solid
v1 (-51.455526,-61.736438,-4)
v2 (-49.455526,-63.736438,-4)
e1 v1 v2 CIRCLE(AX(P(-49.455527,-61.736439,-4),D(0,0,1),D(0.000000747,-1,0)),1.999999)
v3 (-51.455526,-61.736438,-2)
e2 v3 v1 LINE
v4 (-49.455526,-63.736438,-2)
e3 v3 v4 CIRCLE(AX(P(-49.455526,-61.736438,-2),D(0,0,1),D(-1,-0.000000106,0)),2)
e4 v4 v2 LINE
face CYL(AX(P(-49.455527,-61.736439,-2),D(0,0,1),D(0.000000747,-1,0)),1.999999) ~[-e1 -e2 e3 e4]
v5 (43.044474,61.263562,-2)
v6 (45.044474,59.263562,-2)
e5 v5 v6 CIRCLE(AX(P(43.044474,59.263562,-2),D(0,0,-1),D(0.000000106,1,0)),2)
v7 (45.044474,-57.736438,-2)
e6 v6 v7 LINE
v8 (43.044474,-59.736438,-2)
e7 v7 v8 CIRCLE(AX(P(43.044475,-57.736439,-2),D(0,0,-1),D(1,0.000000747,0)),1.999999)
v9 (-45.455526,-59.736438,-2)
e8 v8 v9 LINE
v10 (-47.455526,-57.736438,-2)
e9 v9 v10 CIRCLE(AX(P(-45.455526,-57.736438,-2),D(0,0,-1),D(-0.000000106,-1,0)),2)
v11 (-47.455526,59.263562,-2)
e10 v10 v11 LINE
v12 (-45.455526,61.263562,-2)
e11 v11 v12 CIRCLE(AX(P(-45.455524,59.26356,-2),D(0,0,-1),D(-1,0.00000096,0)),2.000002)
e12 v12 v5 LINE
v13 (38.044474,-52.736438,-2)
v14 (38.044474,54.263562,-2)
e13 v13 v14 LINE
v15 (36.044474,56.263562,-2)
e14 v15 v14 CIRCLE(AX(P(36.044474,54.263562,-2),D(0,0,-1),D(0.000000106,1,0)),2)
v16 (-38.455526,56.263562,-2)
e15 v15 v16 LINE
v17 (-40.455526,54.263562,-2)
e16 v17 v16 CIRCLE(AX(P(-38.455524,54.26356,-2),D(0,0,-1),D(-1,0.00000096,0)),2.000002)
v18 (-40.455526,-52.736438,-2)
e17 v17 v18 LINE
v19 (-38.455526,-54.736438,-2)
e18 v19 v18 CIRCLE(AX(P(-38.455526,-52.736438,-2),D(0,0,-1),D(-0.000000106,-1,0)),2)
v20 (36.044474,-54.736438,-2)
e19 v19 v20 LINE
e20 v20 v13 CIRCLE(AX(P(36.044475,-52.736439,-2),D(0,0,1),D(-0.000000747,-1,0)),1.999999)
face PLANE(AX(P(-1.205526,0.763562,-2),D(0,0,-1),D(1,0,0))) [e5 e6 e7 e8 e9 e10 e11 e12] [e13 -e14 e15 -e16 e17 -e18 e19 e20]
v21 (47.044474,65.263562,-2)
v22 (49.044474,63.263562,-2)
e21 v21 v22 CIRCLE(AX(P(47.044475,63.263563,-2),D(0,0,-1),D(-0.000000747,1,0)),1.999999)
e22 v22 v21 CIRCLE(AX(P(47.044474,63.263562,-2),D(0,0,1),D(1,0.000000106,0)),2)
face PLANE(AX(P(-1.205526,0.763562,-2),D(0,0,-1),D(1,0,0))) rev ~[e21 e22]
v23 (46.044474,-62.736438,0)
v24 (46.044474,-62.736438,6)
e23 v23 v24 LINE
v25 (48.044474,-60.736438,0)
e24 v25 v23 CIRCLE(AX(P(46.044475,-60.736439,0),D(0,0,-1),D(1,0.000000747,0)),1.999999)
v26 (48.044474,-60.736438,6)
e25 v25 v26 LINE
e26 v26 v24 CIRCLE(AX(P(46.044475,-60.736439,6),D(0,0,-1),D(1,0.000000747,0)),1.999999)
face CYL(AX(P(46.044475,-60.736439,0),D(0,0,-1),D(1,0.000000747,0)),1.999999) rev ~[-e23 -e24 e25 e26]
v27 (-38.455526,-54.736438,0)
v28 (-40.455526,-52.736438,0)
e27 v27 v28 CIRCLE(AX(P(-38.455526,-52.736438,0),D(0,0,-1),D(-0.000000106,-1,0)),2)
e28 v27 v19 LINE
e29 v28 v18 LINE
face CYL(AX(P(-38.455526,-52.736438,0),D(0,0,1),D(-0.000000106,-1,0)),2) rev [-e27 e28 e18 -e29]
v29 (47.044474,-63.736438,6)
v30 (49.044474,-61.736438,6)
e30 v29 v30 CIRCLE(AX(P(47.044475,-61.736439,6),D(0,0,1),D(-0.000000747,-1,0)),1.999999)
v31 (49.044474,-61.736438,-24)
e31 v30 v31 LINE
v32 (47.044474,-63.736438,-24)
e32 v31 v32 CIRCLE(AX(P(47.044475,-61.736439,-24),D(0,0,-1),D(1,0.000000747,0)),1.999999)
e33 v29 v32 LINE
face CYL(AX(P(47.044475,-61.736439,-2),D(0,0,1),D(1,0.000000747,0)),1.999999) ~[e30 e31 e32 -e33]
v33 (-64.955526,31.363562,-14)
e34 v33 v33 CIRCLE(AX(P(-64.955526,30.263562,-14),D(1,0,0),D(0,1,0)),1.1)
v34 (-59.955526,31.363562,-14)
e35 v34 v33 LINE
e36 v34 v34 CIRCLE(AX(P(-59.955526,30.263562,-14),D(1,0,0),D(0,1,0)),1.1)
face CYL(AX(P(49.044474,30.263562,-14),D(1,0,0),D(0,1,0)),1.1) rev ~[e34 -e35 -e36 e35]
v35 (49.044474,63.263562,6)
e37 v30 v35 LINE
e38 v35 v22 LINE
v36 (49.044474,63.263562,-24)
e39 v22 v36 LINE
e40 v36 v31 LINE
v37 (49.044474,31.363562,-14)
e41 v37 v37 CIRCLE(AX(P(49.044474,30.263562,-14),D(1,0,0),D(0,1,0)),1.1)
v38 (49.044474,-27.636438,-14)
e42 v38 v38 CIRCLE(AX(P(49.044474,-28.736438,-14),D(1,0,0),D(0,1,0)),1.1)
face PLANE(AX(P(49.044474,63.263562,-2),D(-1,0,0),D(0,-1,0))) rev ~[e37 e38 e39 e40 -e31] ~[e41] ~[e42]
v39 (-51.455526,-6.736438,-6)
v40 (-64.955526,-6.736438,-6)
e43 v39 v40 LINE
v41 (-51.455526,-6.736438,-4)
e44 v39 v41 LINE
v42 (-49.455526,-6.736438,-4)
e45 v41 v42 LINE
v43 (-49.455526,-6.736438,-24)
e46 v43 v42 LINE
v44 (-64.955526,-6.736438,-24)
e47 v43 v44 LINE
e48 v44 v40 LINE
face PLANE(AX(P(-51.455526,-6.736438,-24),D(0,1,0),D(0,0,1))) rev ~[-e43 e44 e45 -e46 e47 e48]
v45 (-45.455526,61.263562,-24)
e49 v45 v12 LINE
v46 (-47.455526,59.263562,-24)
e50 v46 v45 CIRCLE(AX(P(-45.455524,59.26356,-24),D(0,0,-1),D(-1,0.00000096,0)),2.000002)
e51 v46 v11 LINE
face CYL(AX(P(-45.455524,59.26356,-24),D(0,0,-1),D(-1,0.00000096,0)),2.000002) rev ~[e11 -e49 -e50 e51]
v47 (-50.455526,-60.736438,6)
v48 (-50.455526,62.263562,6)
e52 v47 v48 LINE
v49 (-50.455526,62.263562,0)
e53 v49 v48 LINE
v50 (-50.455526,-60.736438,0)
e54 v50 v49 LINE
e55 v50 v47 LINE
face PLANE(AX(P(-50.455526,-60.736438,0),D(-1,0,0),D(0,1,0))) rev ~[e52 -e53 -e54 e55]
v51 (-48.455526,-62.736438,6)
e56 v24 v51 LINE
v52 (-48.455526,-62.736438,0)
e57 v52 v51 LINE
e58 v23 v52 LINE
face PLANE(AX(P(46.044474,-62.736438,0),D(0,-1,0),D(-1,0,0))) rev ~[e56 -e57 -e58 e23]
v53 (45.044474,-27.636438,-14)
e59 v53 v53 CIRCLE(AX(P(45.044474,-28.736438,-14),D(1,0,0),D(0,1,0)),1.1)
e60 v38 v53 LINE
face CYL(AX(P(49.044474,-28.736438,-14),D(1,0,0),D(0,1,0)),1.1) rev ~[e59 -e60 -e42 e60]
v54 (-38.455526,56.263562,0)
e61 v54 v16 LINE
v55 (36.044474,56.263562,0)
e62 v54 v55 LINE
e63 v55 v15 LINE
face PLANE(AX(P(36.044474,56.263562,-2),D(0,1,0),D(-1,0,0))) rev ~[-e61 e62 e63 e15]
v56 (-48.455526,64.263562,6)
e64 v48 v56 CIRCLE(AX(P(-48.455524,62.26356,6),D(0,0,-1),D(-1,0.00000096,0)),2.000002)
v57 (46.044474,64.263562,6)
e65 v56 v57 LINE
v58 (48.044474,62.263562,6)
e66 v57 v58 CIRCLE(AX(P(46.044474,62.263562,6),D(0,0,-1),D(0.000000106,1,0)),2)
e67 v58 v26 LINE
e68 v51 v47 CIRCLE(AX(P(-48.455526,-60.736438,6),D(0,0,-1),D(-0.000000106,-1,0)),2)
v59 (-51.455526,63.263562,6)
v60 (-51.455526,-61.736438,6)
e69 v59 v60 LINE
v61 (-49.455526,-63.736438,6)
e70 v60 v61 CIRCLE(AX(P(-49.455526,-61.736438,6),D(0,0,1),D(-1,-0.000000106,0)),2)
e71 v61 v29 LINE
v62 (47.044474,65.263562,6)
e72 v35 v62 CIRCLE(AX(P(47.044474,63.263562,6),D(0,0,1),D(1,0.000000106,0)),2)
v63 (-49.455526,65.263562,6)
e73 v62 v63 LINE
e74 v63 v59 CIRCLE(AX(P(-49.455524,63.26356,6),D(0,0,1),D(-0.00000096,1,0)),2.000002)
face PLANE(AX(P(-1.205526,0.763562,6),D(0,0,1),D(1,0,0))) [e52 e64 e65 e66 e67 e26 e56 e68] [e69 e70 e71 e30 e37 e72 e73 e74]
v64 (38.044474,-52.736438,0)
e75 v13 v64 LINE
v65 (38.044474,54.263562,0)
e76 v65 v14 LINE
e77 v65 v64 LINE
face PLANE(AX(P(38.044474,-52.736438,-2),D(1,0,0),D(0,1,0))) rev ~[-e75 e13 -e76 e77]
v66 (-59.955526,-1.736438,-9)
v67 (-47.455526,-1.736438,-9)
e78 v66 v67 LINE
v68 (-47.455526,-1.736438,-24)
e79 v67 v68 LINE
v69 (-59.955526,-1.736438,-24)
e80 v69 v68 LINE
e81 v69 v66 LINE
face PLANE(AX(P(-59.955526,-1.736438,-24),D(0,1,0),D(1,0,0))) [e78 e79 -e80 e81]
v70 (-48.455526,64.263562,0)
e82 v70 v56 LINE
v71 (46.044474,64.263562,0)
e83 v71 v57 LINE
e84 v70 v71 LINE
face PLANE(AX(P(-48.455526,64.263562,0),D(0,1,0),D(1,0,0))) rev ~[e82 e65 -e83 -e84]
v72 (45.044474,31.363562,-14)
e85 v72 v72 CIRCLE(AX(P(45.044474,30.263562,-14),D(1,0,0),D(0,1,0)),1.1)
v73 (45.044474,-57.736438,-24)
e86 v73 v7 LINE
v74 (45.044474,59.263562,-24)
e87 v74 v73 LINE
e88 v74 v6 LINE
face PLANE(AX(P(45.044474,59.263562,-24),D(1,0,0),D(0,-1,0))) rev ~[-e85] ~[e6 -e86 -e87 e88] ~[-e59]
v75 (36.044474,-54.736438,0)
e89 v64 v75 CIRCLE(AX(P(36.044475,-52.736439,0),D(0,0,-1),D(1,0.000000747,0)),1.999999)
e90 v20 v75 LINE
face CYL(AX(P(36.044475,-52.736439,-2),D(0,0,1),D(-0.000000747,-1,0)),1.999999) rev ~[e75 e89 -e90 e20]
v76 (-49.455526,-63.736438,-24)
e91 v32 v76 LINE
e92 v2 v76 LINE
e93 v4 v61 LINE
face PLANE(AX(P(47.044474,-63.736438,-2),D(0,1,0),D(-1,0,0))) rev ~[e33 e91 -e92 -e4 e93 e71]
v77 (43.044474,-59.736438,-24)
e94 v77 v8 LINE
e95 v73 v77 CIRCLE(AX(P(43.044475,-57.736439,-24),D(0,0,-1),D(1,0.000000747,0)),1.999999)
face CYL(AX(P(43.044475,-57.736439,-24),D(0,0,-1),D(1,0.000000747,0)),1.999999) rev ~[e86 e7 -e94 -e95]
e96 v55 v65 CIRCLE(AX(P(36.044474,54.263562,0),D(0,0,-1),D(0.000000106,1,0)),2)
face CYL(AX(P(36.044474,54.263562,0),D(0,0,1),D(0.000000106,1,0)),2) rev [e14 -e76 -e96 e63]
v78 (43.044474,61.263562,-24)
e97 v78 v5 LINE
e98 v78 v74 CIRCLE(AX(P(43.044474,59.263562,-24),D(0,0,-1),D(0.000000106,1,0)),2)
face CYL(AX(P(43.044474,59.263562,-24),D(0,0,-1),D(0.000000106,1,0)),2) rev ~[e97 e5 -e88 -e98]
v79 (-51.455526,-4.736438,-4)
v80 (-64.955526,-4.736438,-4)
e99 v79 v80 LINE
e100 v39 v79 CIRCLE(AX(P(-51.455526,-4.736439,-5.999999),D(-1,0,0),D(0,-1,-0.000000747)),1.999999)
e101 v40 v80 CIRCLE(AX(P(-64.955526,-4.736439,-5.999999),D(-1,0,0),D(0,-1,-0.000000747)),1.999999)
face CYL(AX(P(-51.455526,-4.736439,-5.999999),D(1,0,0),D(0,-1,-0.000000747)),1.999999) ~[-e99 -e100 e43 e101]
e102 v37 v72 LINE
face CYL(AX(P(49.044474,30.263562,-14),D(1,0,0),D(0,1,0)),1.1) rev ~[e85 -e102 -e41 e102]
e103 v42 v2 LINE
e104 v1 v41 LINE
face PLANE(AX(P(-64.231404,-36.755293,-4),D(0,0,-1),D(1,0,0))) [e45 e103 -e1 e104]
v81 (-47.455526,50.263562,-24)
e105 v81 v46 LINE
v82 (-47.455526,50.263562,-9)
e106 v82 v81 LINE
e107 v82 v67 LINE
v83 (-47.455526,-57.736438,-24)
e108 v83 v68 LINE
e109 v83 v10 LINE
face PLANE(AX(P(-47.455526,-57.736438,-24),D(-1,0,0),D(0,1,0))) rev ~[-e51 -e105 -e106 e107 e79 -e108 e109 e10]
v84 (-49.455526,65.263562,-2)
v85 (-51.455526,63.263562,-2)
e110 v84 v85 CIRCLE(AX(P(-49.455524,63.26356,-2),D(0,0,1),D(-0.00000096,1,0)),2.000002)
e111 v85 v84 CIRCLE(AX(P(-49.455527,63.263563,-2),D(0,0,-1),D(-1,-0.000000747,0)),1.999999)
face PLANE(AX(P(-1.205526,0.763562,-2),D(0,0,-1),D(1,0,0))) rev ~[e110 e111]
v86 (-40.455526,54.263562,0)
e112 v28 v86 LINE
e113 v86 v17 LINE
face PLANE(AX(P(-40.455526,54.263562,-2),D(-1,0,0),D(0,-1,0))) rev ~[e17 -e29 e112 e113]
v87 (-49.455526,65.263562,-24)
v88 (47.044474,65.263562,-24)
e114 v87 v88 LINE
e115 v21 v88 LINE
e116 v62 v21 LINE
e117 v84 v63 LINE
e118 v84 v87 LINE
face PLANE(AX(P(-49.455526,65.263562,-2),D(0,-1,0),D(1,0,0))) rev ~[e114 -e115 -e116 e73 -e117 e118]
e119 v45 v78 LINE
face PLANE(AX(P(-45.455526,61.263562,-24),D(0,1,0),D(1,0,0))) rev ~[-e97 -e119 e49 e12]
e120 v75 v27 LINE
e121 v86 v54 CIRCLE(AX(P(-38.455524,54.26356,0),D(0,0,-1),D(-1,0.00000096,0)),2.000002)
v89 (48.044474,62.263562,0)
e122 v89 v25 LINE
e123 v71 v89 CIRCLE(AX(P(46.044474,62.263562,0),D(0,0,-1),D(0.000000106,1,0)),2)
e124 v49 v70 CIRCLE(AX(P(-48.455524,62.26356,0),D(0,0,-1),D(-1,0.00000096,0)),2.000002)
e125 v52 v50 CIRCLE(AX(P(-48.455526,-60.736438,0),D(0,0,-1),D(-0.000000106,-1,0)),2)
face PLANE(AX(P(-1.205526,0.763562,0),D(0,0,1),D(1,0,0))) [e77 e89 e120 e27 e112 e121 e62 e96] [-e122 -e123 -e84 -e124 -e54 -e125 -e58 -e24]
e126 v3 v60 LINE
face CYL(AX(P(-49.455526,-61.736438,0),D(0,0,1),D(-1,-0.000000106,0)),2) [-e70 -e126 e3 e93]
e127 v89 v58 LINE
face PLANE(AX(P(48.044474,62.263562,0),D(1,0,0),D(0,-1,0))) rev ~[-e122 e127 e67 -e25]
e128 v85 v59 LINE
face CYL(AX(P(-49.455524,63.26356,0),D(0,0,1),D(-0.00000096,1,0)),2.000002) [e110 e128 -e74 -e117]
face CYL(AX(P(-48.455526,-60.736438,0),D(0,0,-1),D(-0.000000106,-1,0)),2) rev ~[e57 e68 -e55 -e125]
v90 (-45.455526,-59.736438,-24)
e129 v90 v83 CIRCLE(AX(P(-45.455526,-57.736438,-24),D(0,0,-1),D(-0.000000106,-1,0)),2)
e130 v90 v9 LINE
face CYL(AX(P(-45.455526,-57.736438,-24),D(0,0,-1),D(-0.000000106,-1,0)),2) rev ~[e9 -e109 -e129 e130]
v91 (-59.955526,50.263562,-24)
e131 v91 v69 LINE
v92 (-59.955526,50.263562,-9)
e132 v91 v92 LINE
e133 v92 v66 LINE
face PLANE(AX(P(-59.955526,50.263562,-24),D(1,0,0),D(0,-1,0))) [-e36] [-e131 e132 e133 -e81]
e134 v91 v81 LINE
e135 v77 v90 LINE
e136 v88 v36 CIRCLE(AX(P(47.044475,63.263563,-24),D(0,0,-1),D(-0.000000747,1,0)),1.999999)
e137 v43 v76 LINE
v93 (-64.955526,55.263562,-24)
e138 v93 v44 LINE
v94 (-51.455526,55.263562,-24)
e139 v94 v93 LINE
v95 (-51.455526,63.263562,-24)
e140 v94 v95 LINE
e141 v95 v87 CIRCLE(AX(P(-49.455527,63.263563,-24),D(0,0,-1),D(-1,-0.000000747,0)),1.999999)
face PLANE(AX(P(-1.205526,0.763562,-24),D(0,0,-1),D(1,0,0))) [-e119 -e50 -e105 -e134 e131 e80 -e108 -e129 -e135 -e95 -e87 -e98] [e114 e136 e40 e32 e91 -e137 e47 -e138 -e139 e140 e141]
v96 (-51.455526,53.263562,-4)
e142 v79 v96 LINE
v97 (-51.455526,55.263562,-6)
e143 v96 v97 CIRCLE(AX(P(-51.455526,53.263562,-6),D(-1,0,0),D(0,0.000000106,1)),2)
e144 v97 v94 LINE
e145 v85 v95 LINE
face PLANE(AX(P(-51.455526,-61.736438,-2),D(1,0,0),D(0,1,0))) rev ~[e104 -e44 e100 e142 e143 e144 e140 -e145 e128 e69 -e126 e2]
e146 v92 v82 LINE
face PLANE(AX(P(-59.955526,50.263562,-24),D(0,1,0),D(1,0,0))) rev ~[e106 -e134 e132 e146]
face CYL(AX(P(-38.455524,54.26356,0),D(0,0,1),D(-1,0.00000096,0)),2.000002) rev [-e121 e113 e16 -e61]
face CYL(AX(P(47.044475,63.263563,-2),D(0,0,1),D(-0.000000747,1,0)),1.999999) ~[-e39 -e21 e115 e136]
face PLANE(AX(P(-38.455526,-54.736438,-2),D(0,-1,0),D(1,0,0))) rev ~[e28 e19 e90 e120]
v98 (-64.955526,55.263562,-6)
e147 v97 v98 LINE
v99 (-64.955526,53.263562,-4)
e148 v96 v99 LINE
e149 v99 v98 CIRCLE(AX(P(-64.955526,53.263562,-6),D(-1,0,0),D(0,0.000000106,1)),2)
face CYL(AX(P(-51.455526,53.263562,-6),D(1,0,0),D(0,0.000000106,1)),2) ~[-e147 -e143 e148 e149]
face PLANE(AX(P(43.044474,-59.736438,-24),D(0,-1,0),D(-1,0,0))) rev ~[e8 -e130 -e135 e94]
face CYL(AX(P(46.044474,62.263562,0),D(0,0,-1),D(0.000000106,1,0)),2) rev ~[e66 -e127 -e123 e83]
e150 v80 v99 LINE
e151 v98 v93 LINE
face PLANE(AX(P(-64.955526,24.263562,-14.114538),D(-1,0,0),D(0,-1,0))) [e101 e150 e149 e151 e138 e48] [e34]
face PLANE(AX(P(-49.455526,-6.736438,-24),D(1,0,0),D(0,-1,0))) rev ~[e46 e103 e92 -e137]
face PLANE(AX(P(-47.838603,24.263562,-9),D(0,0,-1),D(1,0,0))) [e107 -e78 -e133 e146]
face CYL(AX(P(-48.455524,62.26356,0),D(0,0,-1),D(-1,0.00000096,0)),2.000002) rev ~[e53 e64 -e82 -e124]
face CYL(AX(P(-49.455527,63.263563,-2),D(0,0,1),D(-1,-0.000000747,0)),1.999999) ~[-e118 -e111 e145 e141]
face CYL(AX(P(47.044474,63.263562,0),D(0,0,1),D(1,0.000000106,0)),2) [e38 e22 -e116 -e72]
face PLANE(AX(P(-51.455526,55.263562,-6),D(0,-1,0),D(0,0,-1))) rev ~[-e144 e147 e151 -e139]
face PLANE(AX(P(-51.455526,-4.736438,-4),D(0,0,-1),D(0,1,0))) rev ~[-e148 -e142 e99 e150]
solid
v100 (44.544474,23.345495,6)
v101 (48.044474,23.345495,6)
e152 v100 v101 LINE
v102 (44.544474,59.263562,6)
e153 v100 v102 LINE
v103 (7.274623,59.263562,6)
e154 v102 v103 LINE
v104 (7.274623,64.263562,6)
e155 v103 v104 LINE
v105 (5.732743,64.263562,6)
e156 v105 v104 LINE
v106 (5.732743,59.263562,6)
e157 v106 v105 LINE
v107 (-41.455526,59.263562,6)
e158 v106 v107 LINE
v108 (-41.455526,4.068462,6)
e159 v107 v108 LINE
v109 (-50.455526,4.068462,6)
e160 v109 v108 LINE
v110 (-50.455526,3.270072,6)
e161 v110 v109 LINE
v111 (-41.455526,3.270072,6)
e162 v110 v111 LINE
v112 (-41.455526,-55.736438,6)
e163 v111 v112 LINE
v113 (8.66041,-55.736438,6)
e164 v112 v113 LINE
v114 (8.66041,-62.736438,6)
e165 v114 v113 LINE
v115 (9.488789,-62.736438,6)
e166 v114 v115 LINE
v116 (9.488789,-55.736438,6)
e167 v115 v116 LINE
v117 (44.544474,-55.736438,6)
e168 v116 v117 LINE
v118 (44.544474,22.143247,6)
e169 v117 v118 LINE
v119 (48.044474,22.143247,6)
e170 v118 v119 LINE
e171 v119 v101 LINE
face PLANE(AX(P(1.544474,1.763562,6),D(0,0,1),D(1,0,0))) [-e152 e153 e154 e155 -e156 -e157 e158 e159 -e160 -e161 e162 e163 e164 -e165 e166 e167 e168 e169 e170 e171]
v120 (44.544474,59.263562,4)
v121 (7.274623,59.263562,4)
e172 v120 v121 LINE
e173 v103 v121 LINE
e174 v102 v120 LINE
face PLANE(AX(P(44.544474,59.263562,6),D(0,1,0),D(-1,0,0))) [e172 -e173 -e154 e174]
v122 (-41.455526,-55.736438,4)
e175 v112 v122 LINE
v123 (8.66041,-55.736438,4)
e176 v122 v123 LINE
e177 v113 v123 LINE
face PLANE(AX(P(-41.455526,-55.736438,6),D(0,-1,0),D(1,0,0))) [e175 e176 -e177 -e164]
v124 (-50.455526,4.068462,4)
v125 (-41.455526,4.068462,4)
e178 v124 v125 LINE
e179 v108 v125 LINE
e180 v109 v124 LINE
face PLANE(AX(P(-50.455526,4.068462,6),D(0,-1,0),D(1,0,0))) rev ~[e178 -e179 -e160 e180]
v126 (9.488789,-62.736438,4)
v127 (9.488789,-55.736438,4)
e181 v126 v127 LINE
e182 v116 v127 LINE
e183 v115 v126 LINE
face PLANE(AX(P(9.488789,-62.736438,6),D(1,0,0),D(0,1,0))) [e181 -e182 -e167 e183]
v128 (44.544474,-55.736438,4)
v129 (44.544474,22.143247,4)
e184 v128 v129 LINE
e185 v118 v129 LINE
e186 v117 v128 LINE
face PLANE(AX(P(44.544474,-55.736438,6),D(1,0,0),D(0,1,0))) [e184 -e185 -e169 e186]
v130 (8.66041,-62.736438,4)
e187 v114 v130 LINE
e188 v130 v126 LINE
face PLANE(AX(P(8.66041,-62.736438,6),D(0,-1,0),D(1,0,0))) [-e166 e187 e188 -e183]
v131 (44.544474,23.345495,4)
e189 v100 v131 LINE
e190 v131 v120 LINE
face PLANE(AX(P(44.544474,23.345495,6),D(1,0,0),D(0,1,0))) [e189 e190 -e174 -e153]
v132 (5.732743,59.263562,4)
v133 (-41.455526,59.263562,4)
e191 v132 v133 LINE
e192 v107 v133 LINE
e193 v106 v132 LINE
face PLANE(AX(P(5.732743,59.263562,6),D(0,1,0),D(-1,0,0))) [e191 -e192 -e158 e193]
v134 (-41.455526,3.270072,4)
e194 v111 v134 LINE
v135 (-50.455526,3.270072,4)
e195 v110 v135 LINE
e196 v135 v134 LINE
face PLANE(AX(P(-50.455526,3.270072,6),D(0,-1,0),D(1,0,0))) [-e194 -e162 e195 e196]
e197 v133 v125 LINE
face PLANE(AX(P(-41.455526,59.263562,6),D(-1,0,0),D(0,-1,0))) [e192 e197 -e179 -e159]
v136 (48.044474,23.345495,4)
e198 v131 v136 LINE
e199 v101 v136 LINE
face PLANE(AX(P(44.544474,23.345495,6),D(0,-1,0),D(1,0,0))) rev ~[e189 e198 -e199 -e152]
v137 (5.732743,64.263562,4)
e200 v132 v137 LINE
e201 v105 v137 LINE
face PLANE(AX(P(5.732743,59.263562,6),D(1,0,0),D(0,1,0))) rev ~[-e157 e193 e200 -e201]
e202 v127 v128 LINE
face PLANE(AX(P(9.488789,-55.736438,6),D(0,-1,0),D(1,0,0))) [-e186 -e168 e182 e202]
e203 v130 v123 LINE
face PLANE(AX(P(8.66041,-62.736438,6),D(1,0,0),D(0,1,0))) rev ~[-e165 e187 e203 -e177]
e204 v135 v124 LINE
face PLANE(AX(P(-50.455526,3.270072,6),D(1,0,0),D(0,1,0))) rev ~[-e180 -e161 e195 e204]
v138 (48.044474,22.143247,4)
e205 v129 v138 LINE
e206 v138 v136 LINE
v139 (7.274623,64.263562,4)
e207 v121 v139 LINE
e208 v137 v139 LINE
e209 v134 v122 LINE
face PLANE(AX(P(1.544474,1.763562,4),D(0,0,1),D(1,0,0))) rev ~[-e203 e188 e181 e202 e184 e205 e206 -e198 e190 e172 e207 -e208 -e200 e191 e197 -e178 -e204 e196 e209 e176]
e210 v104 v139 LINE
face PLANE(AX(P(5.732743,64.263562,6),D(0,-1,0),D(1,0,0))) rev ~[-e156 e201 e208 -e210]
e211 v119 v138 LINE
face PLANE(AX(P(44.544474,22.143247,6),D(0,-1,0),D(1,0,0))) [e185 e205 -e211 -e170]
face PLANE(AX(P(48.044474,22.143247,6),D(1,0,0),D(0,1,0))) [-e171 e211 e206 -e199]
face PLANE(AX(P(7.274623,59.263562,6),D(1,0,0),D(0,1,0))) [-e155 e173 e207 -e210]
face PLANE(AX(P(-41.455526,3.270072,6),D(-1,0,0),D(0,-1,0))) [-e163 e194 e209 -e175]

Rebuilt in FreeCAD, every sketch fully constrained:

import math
import FreeCAD as App
import Part
import Sketcher
from FreeCAD import Vector

doc = App.newDocument("Part")
params = doc.addObject("Spreadsheet::Sheet", "Params")
for row, (alias, value) in enumerate([
    ("sketch1_radius", "2.000002 mm"),
    ("sketch1_height", "125 mm"),
    ("sketch1_height2", "123 mm"),
    ("sketch1_width", "96.5 mm"),
    ("sketch1_width2", "94.5 mm"),
    ("pad1_length", "6 mm"),
    ("sketch2_radius", "2.000002 mm"),
    ("sketch2_height", "125 mm"),
    ("sketch2_height2", "107 mm"),
    ("sketch2_width", "96.5 mm"),
    ("sketch2_width2", "74.5 mm"),
    ("pad2_length", "2 mm"),
    ("sketch3_radius", "1.999999 mm"),
    ("sketch3_height", "125 mm"),
    ("sketch3_height2", "107 mm"),
    ("sketch3_width", "96.5 mm"),
    ("sketch3_width2", "74.5 mm"),
    ("pad3_length", "22 mm"),
    ("sketch4_radius", "2 mm"),
    ("sketch4_height", "117 mm"),
    ("sketch4_width", "88.5 mm"),
    ("pocket1_length", "22 mm"),
    ("sketch5_radius", "2 mm"),
    ("sketch5_width", "58 mm"),
    ("sketch5_height", "18 mm"),
    ("pad4_length", "13.5 mm"),
    ("pocket2_length", "20 mm"),
    ("sketch7_height", "52 mm"),
    ("pocket3_length", "15 mm"),
    ("sketch8_diameter", "2.2 mm"),
    ("pocket4_length", "120 mm"),
    ("sketch9_diameter", "2.2 mm"),
    ("pocket5_length", "25 mm"),
    ("sketch10_width", "9 mm"),
    ("sketch10_height", "7 mm"),
    ("sketch10_height2", "5 mm"),
    ("sketch10_width2", "3.5 mm"),
    ("pad5_length", "2 mm"),
], start=1):
    params.set(f"A{row}", alias)
    params.set(f"B{row}", "=" + value)
    params.setAlias(f"B{row}", alias)

body = doc.addObject("PartDesign::Body", "Body")

# Sketch on XY plane
sketch1 = body.newObject("Sketcher::SketchObject", "Sketch")
sketch1.AttachmentSupport = (doc.getObject("XY_Plane"), [""])
sketch1.MapMode = "FlatFace"
sketch1.addGeometry([
    Part.LineSegment(Vector(47, 65.3, 0), Vector(-49.5, 65.3, 0)),  # 0
    Part.ArcOfCircle(Part.Circle(Vector(-49.5, 63.3, 0), Vector(0, 0, 1), 2), math.radians(90), math.radians(180)),  # 1
    Part.LineSegment(Vector(-51.5, 63.3, 0), Vector(-51.5, -61.7, 0)),  # 2
    Part.ArcOfCircle(Part.Circle(Vector(-49.5, -61.7, 0), Vector(0, 0, 1), 2), math.radians(-180), math.radians(-90)),  # 3
    Part.LineSegment(Vector(-49.5, -63.7, 0), Vector(47, -63.7, 0)),  # 4
    Part.ArcOfCircle(Part.Circle(Vector(47, -61.7, 0), Vector(0, 0, 1), 2), math.radians(-90), math.radians(0)),  # 5
    Part.LineSegment(Vector(49, -61.7, 0), Vector(49, 63.3, 0)),  # 6
    Part.ArcOfCircle(Part.Circle(Vector(47, 63.3, 0), Vector(0, 0, 1), 2), math.radians(0), math.radians(90)),  # 7
    Part.LineSegment(Vector(-50.5, -60.7, 0), Vector(-50.5, 62.3, 0)),  # 8
    Part.ArcOfCircle(Part.Circle(Vector(-48.5, 62.3, 0), Vector(0, 0, 1), 2), math.radians(90), math.radians(180)),  # 9
    Part.LineSegment(Vector(-48.5, 64.3, 0), Vector(46, 64.3, 0)),  # 10
    Part.ArcOfCircle(Part.Circle(Vector(46, 62.3, 0), Vector(0, 0, 1), 2), math.radians(0), math.radians(90)),  # 11
    Part.LineSegment(Vector(48, 62.3, 0), Vector(48, -60.7, 0)),  # 12
    Part.ArcOfCircle(Part.Circle(Vector(46, -60.7, 0), Vector(0, 0, 1), 2), math.radians(-90), math.radians(0)),  # 13
    Part.LineSegment(Vector(46, -62.7, 0), Vector(-48.5, -62.7, 0)),  # 14
    Part.ArcOfCircle(Part.Circle(Vector(-48.5, -60.7, 0), Vector(0, 0, 1), 2), math.radians(-180), math.radians(-90)),  # 15
], False)
sketch1.addConstraint([
    Sketcher.Constraint("Tangent", 0, 2, 1, 1),
    Sketcher.Constraint("Tangent", 1, 2, 2, 1),
    Sketcher.Constraint("Tangent", 2, 2, 3, 1),
    Sketcher.Constraint("Tangent", 3, 2, 4, 1),
    Sketcher.Constraint("Tangent", 4, 2, 5, 1),
    Sketcher.Constraint("Tangent", 5, 2, 6, 1),
    Sketcher.Constraint("Tangent", 6, 2, 7, 1),
    Sketcher.Constraint("Tangent", 7, 2, 0, 1),
    Sketcher.Constraint("Tangent", 8, 2, 9, 2),
    Sketcher.Constraint("Tangent", 9, 1, 10, 1),
    Sketcher.Constraint("Tangent", 10, 2, 11, 2),
    Sketcher.Constraint("Tangent", 11, 1, 12, 1),
    Sketcher.Constraint("Tangent", 12, 2, 13, 2),
    Sketcher.Constraint("Tangent", 13, 1, 14, 1),
    Sketcher.Constraint("Tangent", 14, 2, 15, 2),
    Sketcher.Constraint("Tangent", 15, 1, 8, 1),
    Sketcher.Constraint("Horizontal", 0),
    Sketcher.Constraint("Vertical", 2),
    Sketcher.Constraint("Horizontal", 4),
    Sketcher.Constraint("Vertical", 6),
    Sketcher.Constraint("Vertical", 8),
    Sketcher.Constraint("Horizontal", 10),
    Sketcher.Constraint("Vertical", 12),
    Sketcher.Constraint("Horizontal", 14),
    Sketcher.Constraint("Equal", 1, 3),
    Sketcher.Constraint("Equal", 3, 5),
    Sketcher.Constraint("Equal", 5, 7),
    Sketcher.Constraint("Equal", 7, 9),
    Sketcher.Constraint("Equal", 9, 11),
    Sketcher.Constraint("Equal", 11, 13),
    Sketcher.Constraint("Equal", 13, 15),
    Sketcher.Constraint("Radius", 1, 2.000002),
    Sketcher.Constraint("DistanceY", 2, 2, 2, 1, 125.0),
    Sketcher.Constraint("DistanceY", 8, 1, 8, 2, 123.0),
    Sketcher.Constraint("DistanceX", 0, 2, 0, 1, 96.5),
    Sketcher.Constraint("DistanceX", 10, 1, 10, 2, 94.5),
    Sketcher.Constraint("DistanceX", 1, 3, 9, 3, 1.0),
    Sketcher.Constraint("DistanceY", 9, 3, 1, 3, 1.0),
    Sketcher.Constraint("DistanceY", -1, 1, 1, 3, 63.26356),
    Sketcher.Constraint("DistanceX", 1, 3, -1, 1, 49.455524),
])
sketch1.setExpression("Constraints[31]", "Params.sketch1_radius")
sketch1.setExpression("Constraints[32]", "Params.sketch1_height")
sketch1.setExpression("Constraints[33]", "Params.sketch1_height2")
sketch1.setExpression("Constraints[34]", "Params.sketch1_width")
sketch1.setExpression("Constraints[35]", "Params.sketch1_width2")
pad1 = body.newObject("PartDesign::Pad", "Pad")
pad1.Profile = sketch1
pad1.setExpression("Length", "Params.pad1_length")

# Sketch on XY plane
sketch2 = body.newObject("Sketcher::SketchObject", "Sketch001")
sketch2.AttachmentSupport = (doc.getObject("XY_Plane"), [""])
sketch2.MapMode = "FlatFace"
sketch2.addGeometry([
    Part.LineSegment(Vector(47, 65.3, 0), Vector(-49.5, 65.3, 0)),  # 0
    Part.ArcOfCircle(Part.Circle(Vector(-49.5, 63.3, 0), Vector(0, 0, 1), 2), math.radians(90), math.radians(180)),  # 1
    Part.LineSegment(Vector(-51.5, 63.3, 0), Vector(-51.5, -61.7, 0)),  # 2
    Part.ArcOfCircle(Part.Circle(Vector(-49.5, -61.7, 0), Vector(0, 0, 1), 2), math.radians(-180), math.radians(-90)),  # 3
    Part.LineSegment(Vector(-49.5, -63.7, 0), Vector(47, -63.7, 0)),  # 4
    Part.ArcOfCircle(Part.Circle(Vector(47, -61.7, 0), Vector(0, 0, 1), 2), math.radians(-90), math.radians(0)),  # 5
    Part.LineSegment(Vector(49, -61.7, 0), Vector(49, 63.3, 0)),  # 6
    Part.ArcOfCircle(Part.Circle(Vector(47, 63.3, 0), Vector(0, 0, 1), 2), math.radians(0), math.radians(90)),  # 7
    Part.LineSegment(Vector(-40.5, -52.7, 0), Vector(-40.5, 54.3, 0)),  # 8
    Part.ArcOfCircle(Part.Circle(Vector(-38.5, 54.3, 0), Vector(0, 0, 1), 2), math.radians(90), math.radians(180)),  # 9
    Part.LineSegment(Vector(-38.5, 56.3, 0), Vector(36, 56.3, 0)),  # 10
    Part.ArcOfCircle(Part.Circle(Vector(36, 54.3, 0), Vector(0, 0, 1), 2), math.radians(0), math.radians(90)),  # 11
    Part.LineSegment(Vector(38, 54.3, 0), Vector(38, -52.7, 0)),  # 12
    Part.ArcOfCircle(Part.Circle(Vector(36, -52.7, 0), Vector(0, 0, 1), 2), math.radians(-90), math.radians(0)),  # 13
    Part.LineSegment(Vector(36, -54.7, 0), Vector(-38.5, -54.7, 0)),  # 14
    Part.ArcOfCircle(Part.Circle(Vector(-38.5, -52.7, 0), Vector(0, 0, 1), 2), math.radians(-180), math.radians(-90)),  # 15
], False)
sketch2.addConstraint([
    Sketcher.Constraint("Tangent", 0, 2, 1, 1),
    Sketcher.Constraint("Tangent", 1, 2, 2, 1),
    Sketcher.Constraint("Tangent", 2, 2, 3, 1),
    Sketcher.Constraint("Tangent", 3, 2, 4, 1),
    Sketcher.Constraint("Tangent", 4, 2, 5, 1),
    Sketcher.Constraint("Tangent", 5, 2, 6, 1),
    Sketcher.Constraint("Tangent", 6, 2, 7, 1),
    Sketcher.Constraint("Tangent", 7, 2, 0, 1),
    Sketcher.Constraint("Tangent", 8, 2, 9, 2),
    Sketcher.Constraint("Tangent", 9, 1, 10, 1),
    Sketcher.Constraint("Tangent", 10, 2, 11, 2),
    Sketcher.Constraint("Tangent", 11, 1, 12, 1),
    Sketcher.Constraint("Tangent", 12, 2, 13, 2),
    Sketcher.Constraint("Tangent", 13, 1, 14, 1),
    Sketcher.Constraint("Tangent", 14, 2, 15, 2),
    Sketcher.Constraint("Tangent", 15, 1, 8, 1),
    Sketcher.Constraint("Horizontal", 0),
    Sketcher.Constraint("Vertical", 2),
    Sketcher.Constraint("Horizontal", 4),
    Sketcher.Constraint("Vertical", 6),
    Sketcher.Constraint("Vertical", 8),
    Sketcher.Constraint("Horizontal", 10),
    Sketcher.Constraint("Vertical", 12),
    Sketcher.Constraint("Horizontal", 14),
    Sketcher.Constraint("Equal", 1, 3),
    Sketcher.Constraint("Equal", 3, 5),
    Sketcher.Constraint("Equal", 5, 7),
    Sketcher.Constraint("Equal", 7, 9),
    Sketcher.Constraint("Equal", 9, 11),
    Sketcher.Constraint("Equal", 11, 13),
    Sketcher.Constraint("Equal", 13, 15),
    Sketcher.Constraint("Radius", 1, 2.000002),
    Sketcher.Constraint("DistanceY", 2, 2, 2, 1, 125.0),
    Sketcher.Constraint("DistanceY", 8, 1, 8, 2, 107.0),
    Sketcher.Constraint("DistanceX", 0, 2, 0, 1, 96.5),
    Sketcher.Constraint("DistanceX", 10, 1, 10, 2, 74.5),
    Sketcher.Constraint("DistanceX", 1, 3, 9, 3, 11.0),
    Sketcher.Constraint("DistanceY", 9, 3, 1, 3, 9.0),
    Sketcher.Constraint("DistanceY", -1, 1, 1, 3, 63.26356),
    Sketcher.Constraint("DistanceX", 1, 3, -1, 1, 49.455524),
])
sketch2.setExpression("Constraints[31]", "Params.sketch2_radius")
sketch2.setExpression("Constraints[32]", "Params.sketch2_height")
sketch2.setExpression("Constraints[33]", "Params.sketch2_height2")
sketch2.setExpression("Constraints[34]", "Params.sketch2_width")
sketch2.setExpression("Constraints[35]", "Params.sketch2_width2")
pad2 = body.newObject("PartDesign::Pad", "Pad001")
pad2.Profile = sketch2
pad2.setExpression("Length", "Params.pad2_length")
pad2.Reversed = True

# Sketch on XY plane
sketch3 = body.newObject("Sketcher::SketchObject", "Sketch002")
sketch3.AttachmentSupport = (doc.getObject("XY_Plane"), [""])
sketch3.MapMode = "FlatFace"
sketch3.AttachmentOffset = App.Placement(Vector(0, 0, -2), App.Rotation())
sketch3.addGeometry([
    Part.LineSegment(Vector(-49.5, 65.3, 0), Vector(47, 65.3, 0)),  # 0
    Part.ArcOfCircle(Part.Circle(Vector(47, 63.3, 0), Vector(0, 0, 1), 2), math.radians(0), math.radians(90)),  # 1
    Part.LineSegment(Vector(49, 63.3, 0), Vector(49, -61.7, 0)),  # 2
    Part.ArcOfCircle(Part.Circle(Vector(47, -61.7, 0), Vector(0, 0, 1), 2), math.radians(-90), math.radians(0)),  # 3
    Part.LineSegment(Vector(47, -63.7, 0), Vector(-49.5, -63.7, 0)),  # 4
    Part.ArcOfCircle(Part.Circle(Vector(-49.5, -61.7, 0), Vector(0, 0, 1), 2), math.radians(180), math.radians(270)),  # 5
    Part.LineSegment(Vector(-51.5, -61.7, 0), Vector(-51.5, 63.3, 0)),  # 6
    Part.ArcOfCircle(Part.Circle(Vector(-49.5, 63.3, 0), Vector(0, 0, 1), 2), math.radians(90), math.radians(180)),  # 7
    Part.LineSegment(Vector(-40.5, 54.3, 0), Vector(-40.5, -52.7, 0)),  # 8
    Part.ArcOfCircle(Part.Circle(Vector(-38.5, -52.7, 0), Vector(0, 0, 1), 2), math.radians(180), math.radians(270)),  # 9
    Part.LineSegment(Vector(-38.5, -54.7, 0), Vector(36, -54.7, 0)),  # 10
    Part.ArcOfCircle(Part.Circle(Vector(36, -52.7, 0), Vector(0, 0, 1), 2), math.radians(-90), math.radians(0)),  # 11
    Part.LineSegment(Vector(38, -52.7, 0), Vector(38, 54.3, 0)),  # 12
    Part.ArcOfCircle(Part.Circle(Vector(36, 54.3, 0), Vector(0, 0, 1), 2), math.radians(0), math.radians(90)),  # 13
    Part.LineSegment(Vector(36, 56.3, 0), Vector(-38.5, 56.3, 0)),  # 14
    Part.ArcOfCircle(Part.Circle(Vector(-38.5, 54.3, 0), Vector(0, 0, 1), 2), math.radians(90), math.radians(180)),  # 15
], False)
sketch3.addConstraint([
    Sketcher.Constraint("Tangent", 0, 2, 1, 2),
    Sketcher.Constraint("Tangent", 1, 1, 2, 1),
    Sketcher.Constraint("Tangent", 2, 2, 3, 2),
    Sketcher.Constraint("Tangent", 3, 1, 4, 1),
    Sketcher.Constraint("Tangent", 4, 2, 5, 2),
    Sketcher.Constraint("Tangent", 5, 1, 6, 1),
    Sketcher.Constraint("Tangent", 6, 2, 7, 2),
    Sketcher.Constraint("Tangent", 7, 1, 0, 1),
    Sketcher.Constraint("Tangent", 8, 2, 9, 1),
    Sketcher.Constraint("Tangent", 9, 2, 10, 1),
    Sketcher.Constraint("Tangent", 10, 2, 11, 1),
    Sketcher.Constraint("Tangent", 11, 2, 12, 1),
    Sketcher.Constraint("Tangent", 12, 2, 13, 1),
    Sketcher.Constraint("Tangent", 13, 2, 14, 1),
    Sketcher.Constraint("Tangent", 14, 2, 15, 1),
    Sketcher.Constraint("Tangent", 15, 2, 8, 1),
    Sketcher.Constraint("Horizontal", 0),
    Sketcher.Constraint("Vertical", 2),
    Sketcher.Constraint("Horizontal", 4),
    Sketcher.Constraint("Vertical", 6),
    Sketcher.Constraint("Vertical", 8),
    Sketcher.Constraint("Horizontal", 10),
    Sketcher.Constraint("Vertical", 12),
    Sketcher.Constraint("Horizontal", 14),
    Sketcher.Constraint("Equal", 1, 3),
    Sketcher.Constraint("Equal", 3, 5),
    Sketcher.Constraint("Equal", 5, 7),
    Sketcher.Constraint("Equal", 7, 9),
    Sketcher.Constraint("Equal", 9, 11),
    Sketcher.Constraint("Equal", 11, 13),
    Sketcher.Constraint("Equal", 13, 15),
    Sketcher.Constraint("Radius", 1, 1.999999),
    Sketcher.Constraint("DistanceY", 2, 2, 2, 1, 125.0),
    Sketcher.Constraint("DistanceY", 8, 2, 8, 1, 107.0),
    Sketcher.Constraint("DistanceX", 0, 1, 0, 2, 96.5),
    Sketcher.Constraint("DistanceX", 10, 1, 10, 2, 74.5),
    Sketcher.Constraint("DistanceX", 5, 3, 9, 3, 11.0),
    Sketcher.Constraint("DistanceY", 5, 3, 9, 3, 9.0),
    Sketcher.Constraint("DistanceY", 3, 3, -1, 1, 61.736439),
    Sketcher.Constraint("DistanceX", -1, 1, 1, 3, 47.044475),
])
sketch3.setExpression("Constraints[31]", "Params.sketch3_radius")
sketch3.setExpression("Constraints[32]", "Params.sketch3_height")
sketch3.setExpression("Constraints[33]", "Params.sketch3_height2")
sketch3.setExpression("Constraints[34]", "Params.sketch3_width")
sketch3.setExpression("Constraints[35]", "Params.sketch3_width2")
pad3 = body.newObject("PartDesign::Pad", "Pad002")
pad3.Profile = sketch3
pad3.setExpression("Length", "Params.pad3_length")
pad3.Reversed = True

# Sketch on XY plane
sketch4 = body.newObject("Sketcher::SketchObject", "Sketch003")
sketch4.AttachmentSupport = (doc.getObject("XY_Plane"), [""])
sketch4.MapMode = "FlatFace"
sketch4.AttachmentOffset = App.Placement(Vector(0, 0, -24), App.Rotation())
sketch4.addGeometry([
    Part.LineSegment(Vector(43, -59.7, 0), Vector(-45.5, -59.7, 0)),  # 0
    Part.ArcOfCircle(Part.Circle(Vector(-45.5, -57.7, 0), Vector(0, 0, 1), 2), math.radians(-180), math.radians(-90)),  # 1
    Part.LineSegment(Vector(-47.5, -57.7, 0), Vector(-47.5, 59.3, 0)),  # 2
    Part.ArcOfCircle(Part.Circle(Vector(-45.5, 59.3, 0), Vector(0, 0, 1), 2), math.radians(90), math.radians(180)),  # 3
    Part.LineSegment(Vector(-45.5, 61.3, 0), Vector(43, 61.3, 0)),  # 4
    Part.ArcOfCircle(Part.Circle(Vector(43, 59.3, 0), Vector(0, 0, 1), 2), math.radians(0), math.radians(90)),  # 5
    Part.LineSegment(Vector(45, 59.3, 0), Vector(45, -57.7, 0)),  # 6
    Part.ArcOfCircle(Part.Circle(Vector(43, -57.7, 0), Vector(0, 0, 1), 2), math.radians(-90), math.radians(0)),  # 7
], False)
sketch4.addConstraint([
    Sketcher.Constraint("Tangent", 0, 2, 1, 2),
    Sketcher.Constraint("Tangent", 1, 1, 2, 1),
    Sketcher.Constraint("Tangent", 2, 2, 3, 2),
    Sketcher.Constraint("Tangent", 3, 1, 4, 1),
    Sketcher.Constraint("Tangent", 4, 2, 5, 2),
    Sketcher.Constraint("Tangent", 5, 1, 6, 1),
    Sketcher.Constraint("Tangent", 6, 2, 7, 2),
    Sketcher.Constraint("Tangent", 7, 1, 0, 1),
    Sketcher.Constraint("Horizontal", 0),
    Sketcher.Constraint("Vertical", 2),
    Sketcher.Constraint("Horizontal", 4),
    Sketcher.Constraint("Vertical", 6),
    Sketcher.Constraint("Equal", 1, 3),
    Sketcher.Constraint("Equal", 3, 5),
    Sketcher.Constraint("Equal", 5, 7),
    Sketcher.Constraint("Radius", 1, 2.0),
    Sketcher.Constraint("DistanceY", 2, 1, 2, 2, 117.0),
    Sketcher.Constraint("DistanceX", 0, 2, 0, 1, 88.5),
    Sketcher.Constraint("DistanceY", -1, 1, 3, 3, 59.26356),
    Sketcher.Constraint("DistanceX", 1, 3, -1, 1, 45.455526),
])
sketch4.setExpression("Constraints[15]", "Params.sketch4_radius")
sketch4.setExpression("Constraints[16]", "Params.sketch4_height")
sketch4.setExpression("Constraints[17]", "Params.sketch4_width")
pocket1 = body.newObject("PartDesign::Pocket", "Pocket")
pocket1.Profile = sketch4
pocket1.setExpression("Length", "Params.pocket1_length")
pocket1.Reversed = True

# Sketch on YZ plane
sketch5 = body.newObject("Sketcher::SketchObject", "Sketch004")
sketch5.AttachmentSupport = (doc.getObject("YZ_Plane"), [""])
sketch5.MapMode = "FlatFace"
sketch5.AttachmentOffset = App.Placement(Vector(0, 0, -51.455526), App.Rotation())
sketch5.addGeometry([
    Part.LineSegment(Vector(-4.7, -4, 0), Vector(53.3, -4, 0)),  # 0
    Part.ArcOfCircle(Part.Circle(Vector(53.3, -6, 0), Vector(0, 0, 1), 2), math.radians(0), math.radians(90)),  # 1
    Part.LineSegment(Vector(55.3, -6, 0), Vector(55.3, -24, 0)),  # 2
    Part.LineSegment(Vector(55.3, -24, 0), Vector(-6.7, -24, 0)),  # 3
    Part.LineSegment(Vector(-6.7, -24, 0), Vector(-6.7, -6, 0)),  # 4
    Part.ArcOfCircle(Part.Circle(Vector(-4.7, -6, 0), Vector(0, 0, 1), 2), math.radians(90), math.radians(180)),  # 5
], False)
sketch5.addConstraint([
    Sketcher.Constraint("Tangent", 0, 2, 1, 2),
    Sketcher.Constraint("Tangent", 1, 1, 2, 1),
    Sketcher.Constraint("Coincident", 2, 2, 3, 1),
    Sketcher.Constraint("Coincident", 3, 2, 4, 1),
    Sketcher.Constraint("Tangent", 4, 2, 5, 2),
    Sketcher.Constraint("Tangent", 5, 1, 0, 1),
    Sketcher.Constraint("Horizontal", 0),
    Sketcher.Constraint("Vertical", 2),
    Sketcher.Constraint("Horizontal", 3),
    Sketcher.Constraint("Vertical", 4),
    Sketcher.Constraint("Equal", 1, 5),
    Sketcher.Constraint("Radius", 1, 2.0),
    Sketcher.Constraint("DistanceX", 0, 1, 0, 2, 58.0),
    Sketcher.Constraint("DistanceY", 2, 2, 2, 1, 18.0),
    Sketcher.Constraint("DistanceY", 1, 3, -1, 1, 6.0),
    Sketcher.Constraint("DistanceX", -1, 1, 1, 3, 53.263562),
])
sketch5.setExpression("Constraints[11]", "Params.sketch5_radius")
sketch5.setExpression("Constraints[12]", "Params.sketch5_width")
sketch5.setExpression("Constraints[13]", "Params.sketch5_height")
pad4 = body.newObject("PartDesign::Pad", "Pad003")
pad4.Profile = sketch5
pad4.setExpression("Length", "Params.pad4_length")
pad4.Reversed = True

# Sketch on XY plane
sketch6 = body.newObject("Sketcher::SketchObject", "Sketch005")
sketch6.AttachmentSupport = (doc.getObject("XY_Plane"), [""])
sketch6.MapMode = "FlatFace"
sketch6.AttachmentOffset = App.Placement(Vector(0, 0, -24), App.Rotation())
sketch6.addGeometry([
    Part.LineSegment(Vector(-79, -67, 0), Vector(-79, -7, 0)),
    Part.LineSegment(Vector(-79, -7, 0), Vector(-49, -7, 0)),
    Part.LineSegment(Vector(-49, -7, 0), Vector(-49, -67, 0)),
    Part.LineSegment(Vector(-49, -67, 0), Vector(-79, -67, 0)),
], False)
sketch6.addConstraint([
    Sketcher.Constraint("Coincident", 0, 2, 1, 1),
    Sketcher.Constraint("Coincident", 1, 2, 2, 1),
    Sketcher.Constraint("Coincident", 2, 2, 3, 1),
    Sketcher.Constraint("Coincident", 3, 2, 0, 1),
    Sketcher.Constraint("Vertical", 0),
    Sketcher.Constraint("Horizontal", 1),
    Sketcher.Constraint("Vertical", 2),
    Sketcher.Constraint("Horizontal", 3),
    Sketcher.Constraint("DistanceY", 0, 1, 0, 2, 60.03771),
    Sketcher.Constraint("DistanceX", 1, 1, 1, 2, 29.551757),
    Sketcher.Constraint("DistanceX", 0, 2, -1, 1, 79.007283),
    Sketcher.Constraint("DistanceY", 0, 2, -1, 1, 6.736438),
])
pocket2 = body.newObject("PartDesign::Pocket", "Pocket001")
pocket2.Profile = sketch6
pocket2.setExpression("Length", "Params.pocket2_length")
pocket2.Reversed = True

# Sketch on XY plane
sketch7 = body.newObject("Sketcher::SketchObject", "Sketch006")
sketch7.AttachmentSupport = (doc.getObject("XY_Plane"), [""])
sketch7.MapMode = "FlatFace"
sketch7.AttachmentOffset = App.Placement(Vector(0, 0, -24), App.Rotation())
sketch7.addGeometry([
    Part.LineSegment(Vector(-60, -2, 0), Vector(-60, 50, 0)),
    Part.LineSegment(Vector(-60, 50, 0), Vector(-36, 50, 0)),
    Part.LineSegment(Vector(-36, 50, 0), Vector(-36, -2, 0)),
    Part.LineSegment(Vector(-36, -2, 0), Vector(-60, -2, 0)),
], False)
sketch7.addConstraint([
    Sketcher.Constraint("Coincident", 0, 2, 1, 1),
    Sketcher.Constraint("Coincident", 1, 2, 2, 1),
    Sketcher.Constraint("Coincident", 2, 2, 3, 1),
    Sketcher.Constraint("Coincident", 3, 2, 0, 1),
    Sketcher.Constraint("Vertical", 0),
    Sketcher.Constraint("Horizontal", 1),
    Sketcher.Constraint("Vertical", 2),
    Sketcher.Constraint("Horizontal", 3),
    Sketcher.Constraint("DistanceY", 0, 1, 0, 2, 52.0),
    Sketcher.Constraint("DistanceX", 1, 1, 1, 2, 24.233846),
    Sketcher.Constraint("DistanceX", 1, 2, -1, 1, 35.72168),
    Sketcher.Constraint("DistanceY", -1, 1, 0, 2, 50.263562),
])
sketch7.setExpression("Constraints[8]", "Params.sketch7_height")
pocket3 = body.newObject("PartDesign::Pocket", "Pocket002")
pocket3.Profile = sketch7
pocket3.setExpression("Length", "Params.pocket3_length")
pocket3.Reversed = True

# Sketch on YZ plane
sketch8 = body.newObject("Sketcher::SketchObject", "Sketch007")
sketch8.AttachmentSupport = (doc.getObject("YZ_Plane"), [""])
sketch8.MapMode = "FlatFace"
sketch8.AttachmentOffset = App.Placement(Vector(0, 0, 49.044474), App.Rotation())
sketch8.addGeometry(Part.Circle(Vector(30.3, -14, 0), Vector(0, 0, 1), 1.1), False)
sketch8.addConstraint([
    Sketcher.Constraint("Diameter", 0, 2.2),
    Sketcher.Constraint("DistanceY", 0, 3, -1, 1, 14.0),
    Sketcher.Constraint("DistanceX", -1, 1, 0, 3, 30.263562),
])
sketch8.setExpression("Constraints[0]", "Params.sketch8_diameter")
pocket4 = body.newObject("PartDesign::Pocket", "Pocket003")
pocket4.Profile = sketch8
pocket4.setExpression("Length", "Params.pocket4_length")

# Sketch on YZ plane
sketch9 = body.newObject("Sketcher::SketchObject", "Sketch008")
sketch9.AttachmentSupport = (doc.getObject("YZ_Plane"), [""])
sketch9.MapMode = "FlatFace"
sketch9.AttachmentOffset = App.Placement(Vector(0, 0, 49.044474), App.Rotation())
sketch9.addGeometry(Part.Circle(Vector(-28.7, -14, 0), Vector(0, 0, 1), 1.1), False)
sketch9.addConstraint([
    Sketcher.Constraint("Diameter", 0, 2.2),
    Sketcher.Constraint("DistanceY", 0, 3, -1, 1, 14.0),
    Sketcher.Constraint("DistanceX", 0, 3, -1, 1, 28.736438),
])
sketch9.setExpression("Constraints[0]", "Params.sketch9_diameter")
pocket5 = body.newObject("PartDesign::Pocket", "Pocket004")
pocket5.Profile = sketch9
pocket5.setExpression("Length", "Params.pocket5_length")
body2 = doc.addObject("PartDesign::Body", "Body001")

# Sketch on XY plane
sketch10 = body2.newObject("Sketcher::SketchObject", "Sketch009")
sketch10.AttachmentSupport = (doc.getObject("XY_Plane001"), [""])
sketch10.MapMode = "FlatFace"
sketch10.AttachmentOffset = App.Placement(Vector(0, 0, 6), App.Rotation())
sketch10.addGeometry([
    Part.LineSegment(Vector(-41.5, 59.3, 0), Vector(-41.5, 4.1, 0)),  # 0
    Part.LineSegment(Vector(-41.5, 4.1, 0), Vector(-50.5, 4.1, 0)),  # 1
    Part.LineSegment(Vector(-50.5, 4.1, 0), Vector(-50.5, 3.3, 0)),  # 2
    Part.LineSegment(Vector(-50.5, 3.3, 0), Vector(-41.5, 3.3, 0)),  # 3
    Part.LineSegment(Vector(-41.5, 3.3, 0), Vector(-41.5, -55.7, 0)),  # 4
    Part.LineSegment(Vector(-41.5, -55.7, 0), Vector(8.7, -55.7, 0)),  # 5
    Part.LineSegment(Vector(8.7, -55.7, 0), Vector(8.7, -62.7, 0)),  # 6
    Part.LineSegment(Vector(8.7, -62.7, 0), Vector(9.5, -62.7, 0)),  # 7
    Part.LineSegment(Vector(9.5, -62.7, 0), Vector(9.5, -55.7, 0)),  # 8
    Part.LineSegment(Vector(9.5, -55.7, 0), Vector(44.5, -55.7, 0)),  # 9
    Part.LineSegment(Vector(44.5, -55.7, 0), Vector(44.5, 22.1, 0)),  # 10
    Part.LineSegment(Vector(44.5, 22.1, 0), Vector(48, 22.1, 0)),  # 11
    Part.LineSegment(Vector(48, 22.1, 0), Vector(48, 23.3, 0)),  # 12
    Part.LineSegment(Vector(48, 23.3, 0), Vector(44.5, 23.3, 0)),  # 13
    Part.LineSegment(Vector(44.5, 23.3, 0), Vector(44.5, 59.3, 0)),  # 14
    Part.LineSegment(Vector(44.5, 59.3, 0), Vector(7.3, 59.3, 0)),  # 15
    Part.LineSegment(Vector(7.3, 59.3, 0), Vector(7.3, 64.3, 0)),  # 16
    Part.LineSegment(Vector(7.3, 64.3, 0), Vector(5.7, 64.3, 0)),  # 17
    Part.LineSegment(Vector(5.7, 64.3, 0), Vector(5.7, 59.3, 0)),  # 18
    Part.LineSegment(Vector(5.7, 59.3, 0), Vector(-41.5, 59.3, 0)),  # 19
], False)
sketch10.addConstraint([
    Sketcher.Constraint("Coincident", 0, 2, 1, 1),
    Sketcher.Constraint("Coincident", 1, 2, 2, 1),
    Sketcher.Constraint("Coincident", 2, 2, 3, 1),
    Sketcher.Constraint("Coincident", 3, 2, 4, 1),
    Sketcher.Constraint("Coincident", 4, 2, 5, 1),
    Sketcher.Constraint("Coincident", 5, 2, 6, 1),
    Sketcher.Constraint("Coincident", 6, 2, 7, 1),
    Sketcher.Constraint("Coincident", 7, 2, 8, 1),
    Sketcher.Constraint("Coincident", 8, 2, 9, 1),
    Sketcher.Constraint("Coincident", 9, 2, 10, 1),
    Sketcher.Constraint("Coincident", 10, 2, 11, 1),
    Sketcher.Constraint("Coincident", 11, 2, 12, 1),
    Sketcher.Constraint("Coincident", 12, 2, 13, 1),
    Sketcher.Constraint("Coincident", 13, 2, 14, 1),
    Sketcher.Constraint("Coincident", 14, 2, 15, 1),
    Sketcher.Constraint("Coincident", 15, 2, 16, 1),
    Sketcher.Constraint("Coincident", 16, 2, 17, 1),
    Sketcher.Constraint("Coincident", 17, 2, 18, 1),
    Sketcher.Constraint("Coincident", 18, 2, 19, 1),
    Sketcher.Constraint("Coincident", 19, 2, 0, 1),
    Sketcher.Constraint("Vertical", 0),
    Sketcher.Constraint("Horizontal", 1),
    Sketcher.Constraint("Vertical", 2),
    Sketcher.Constraint("Horizontal", 3),
    Sketcher.Constraint("Vertical", 4),
    Sketcher.Constraint("Horizontal", 5),
    Sketcher.Constraint("Vertical", 6),
    Sketcher.Constraint("Horizontal", 7),
    Sketcher.Constraint("Vertical", 8),
    Sketcher.Constraint("Horizontal", 9),
    Sketcher.Constraint("Vertical", 10),
    Sketcher.Constraint("Horizontal", 11),
    Sketcher.Constraint("Vertical", 12),
    Sketcher.Constraint("Horizontal", 13),
    Sketcher.Constraint("Vertical", 14),
    Sketcher.Constraint("Horizontal", 15),
    Sketcher.Constraint("Vertical", 16),
    Sketcher.Constraint("Horizontal", 17),
    Sketcher.Constraint("Vertical", 18),
    Sketcher.Constraint("Horizontal", 19),
    Sketcher.Constraint("Horizontal", 5, 2, 8, 2),
    Sketcher.Constraint("Horizontal", 15, 2, 18, 2),
    Sketcher.Constraint("Vertical", 0, 2, 3, 2),
    Sketcher.Constraint("Vertical", 10, 2, 13, 2),
    Sketcher.Constraint("DistanceX", 1, 2, 1, 1, 9.0),
    Sketcher.Constraint("DistanceY", 6, 2, 6, 1, 7.0),
    Sketcher.Constraint("DistanceY", 16, 1, 16, 2, 5.0),
    Sketcher.Constraint("DistanceX", 11, 1, 11, 2, 3.5),
    Sketcher.Constraint("DistanceX", 4, 2, 9, 2, 86.0),
    Sketcher.Constraint("DistanceY", 0, 2, 0, 1, 55.1951),
    Sketcher.Constraint("DistanceX", 7, 1, 7, 2, 0.828379),
    Sketcher.Constraint("DistanceX", 15, 2, 15, 1, 37.269852),
    Sketcher.Constraint("DistanceX", 17, 2, 17, 1, 1.541879),
    Sketcher.Constraint("DistanceY", 2, 2, 2, 1, 0.79839),
    Sketcher.Constraint("DistanceY", 4, 2, 4, 1, 59.00651),
    Sketcher.Constraint("DistanceY", 12, 1, 12, 2, 1.202248),
    Sketcher.Constraint("DistanceX", 5, 1, 5, 2, 50.115936),
    Sketcher.Constraint("DistanceY", 10, 1, 10, 2, 77.879685),
    Sketcher.Constraint("DistanceY", -1, 1, 2, 2, 3.270072),
    Sketcher.Constraint("DistanceX", -1, 1, 5, 2, 8.66041),
])
sketch10.setExpression("Constraints[44]", "Params.sketch10_width")
sketch10.setExpression("Constraints[45]", "Params.sketch10_height")
sketch10.setExpression("Constraints[46]", "Params.sketch10_height2")
sketch10.setExpression("Constraints[47]", "Params.sketch10_width2")
pad5 = body2.newObject("PartDesign::Pad", "Pad004")
pad5.Profile = sketch10
pad5.setExpression("Length", "Params.pad5_length")
pad5.Reversed = True

doc.recompute()
